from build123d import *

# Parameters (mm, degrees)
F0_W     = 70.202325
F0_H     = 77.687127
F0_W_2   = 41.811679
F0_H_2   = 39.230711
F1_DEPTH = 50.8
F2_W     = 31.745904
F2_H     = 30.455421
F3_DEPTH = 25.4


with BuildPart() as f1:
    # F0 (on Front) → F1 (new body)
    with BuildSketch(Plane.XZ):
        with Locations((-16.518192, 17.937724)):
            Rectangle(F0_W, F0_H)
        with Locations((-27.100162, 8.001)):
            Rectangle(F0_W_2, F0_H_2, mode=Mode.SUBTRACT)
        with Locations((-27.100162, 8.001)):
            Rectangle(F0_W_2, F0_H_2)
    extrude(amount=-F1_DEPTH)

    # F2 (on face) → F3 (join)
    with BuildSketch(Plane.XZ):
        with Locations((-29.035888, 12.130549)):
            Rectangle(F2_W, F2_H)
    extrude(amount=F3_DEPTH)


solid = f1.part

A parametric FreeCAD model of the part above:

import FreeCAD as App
import Part
import Sketcher
from FreeCAD import Vector
Q = App.Units.Quantity

doc = App.newDocument("Part")
body = doc.addObject("PartDesign::Body", "Body")

# Sketch on XZ plane
sketch1 = body.newObject("Sketcher::SketchObject", "Sketch")
sketch1.AttachmentSupport = (doc.getObject("XZ_Plane"), [""])
sketch1.MapMode = "FlatFace"
sketch1.addGeometry([
    Part.LineSegment(Vector(-52, 57, 0), Vector(-52, -21, 0)),
    Part.LineSegment(Vector(-52, -21, 0), Vector(19, -21, 0)),
    Part.LineSegment(Vector(19, -21, 0), Vector(19, 57, 0)),
    Part.LineSegment(Vector(19, 57, 0), Vector(-52, 57, 0)),
], False)
sketch1.addConstraint([
    Sketcher.Constraint("Coincident", 0, 2, 1, 1),
    Sketcher.Constraint("Coincident", 1, 2, 2, 1),
    Sketcher.Constraint("Coincident", 2, 2, 3, 1),
    Sketcher.Constraint("Coincident", 3, 2, 0, 1),
    Sketcher.Constraint("Vertical", 0),
    Sketcher.Constraint("Horizontal", 1),
    Sketcher.Constraint("Vertical", 2),
    Sketcher.Constraint("Horizontal", 3),
    Sketcher.Constraint("DistanceX", 1, 1, 1, 2, 70.202325),
    Sketcher.Constraint("DistanceY", 0, 2, 0, 1, 77.687127),
    Sketcher.Constraint("DistanceY", 0, 2, -1, 1, 20.905839),
    Sketcher.Constraint("DistanceX", -1, 1, 1, 2, 18.58297),
])
pad1 = body.newObject("PartDesign::Pad", "Pad")
pad1.Profile = sketch1
pad1.Length = Q("2 in")
pad1.Reversed = True

# Sketch on XZ plane
sketch2 = body.newObject("Sketcher::SketchObject", "Sketch001")
sketch2.AttachmentSupport = (doc.getObject("XZ_Plane"), [""])
sketch2.MapMode = "FlatFace"
sketch2.addGeometry([
    Part.LineSegment(Vector(-45, 27, 0), Vector(-45, -3, 0)),
    Part.LineSegment(Vector(-45, -3, 0), Vector(-13, -3, 0)),
    Part.LineSegment(Vector(-13, -3, 0), Vector(-13, 27, 0)),
    Part.LineSegment(Vector(-13, 27, 0), Vector(-45, 27, 0)),
], False)
sketch2.addConstraint([
    Sketcher.Constraint("Coincident", 0, 2, 1, 1),
    Sketcher.Constraint("Coincident", 1, 2, 2, 1),
    Sketcher.Constraint("Coincident", 2, 2, 3, 1),
    Sketcher.Constraint("Coincident", 3, 2, 0, 1),
    Sketcher.Constraint("Vertical", 0),
    Sketcher.Constraint("Horizontal", 1),
    Sketcher.Constraint("Vertical", 2),
    Sketcher.Constraint("Horizontal", 3),
    Sketcher.Constraint("DistanceY", 0, 2, 0, 1, 30.455421),
    Sketcher.Constraint("DistanceX", 1, 1, 1, 2, 31.745904),
    Sketcher.Constraint("DistanceX", 0, 2, -1, 1, 44.90884),
    Sketcher.Constraint("DistanceY", 0, 2, -1, 1, 3.097161),
])
pad2 = body.newObject("PartDesign::Pad", "Pad001")
pad2.Profile = sketch2
pad2.Length = Q("1 in")

doc.recompute()
